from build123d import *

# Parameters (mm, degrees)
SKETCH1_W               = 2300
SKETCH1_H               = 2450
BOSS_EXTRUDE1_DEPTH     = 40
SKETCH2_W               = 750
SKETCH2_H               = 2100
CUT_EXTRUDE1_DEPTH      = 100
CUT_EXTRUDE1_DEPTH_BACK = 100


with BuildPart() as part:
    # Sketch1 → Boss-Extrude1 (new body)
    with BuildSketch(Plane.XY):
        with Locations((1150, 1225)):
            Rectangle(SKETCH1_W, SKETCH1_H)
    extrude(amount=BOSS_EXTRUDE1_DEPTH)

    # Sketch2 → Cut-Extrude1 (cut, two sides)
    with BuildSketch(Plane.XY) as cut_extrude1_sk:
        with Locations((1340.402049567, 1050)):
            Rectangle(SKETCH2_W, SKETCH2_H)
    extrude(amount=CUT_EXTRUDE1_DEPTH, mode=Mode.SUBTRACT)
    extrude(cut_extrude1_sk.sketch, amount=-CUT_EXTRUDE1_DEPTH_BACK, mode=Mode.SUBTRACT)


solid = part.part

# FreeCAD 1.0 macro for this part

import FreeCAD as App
import Part
import Sketcher
Q = App.Units.Quantity


def add_polygon(sketch, points):
    """Adds a closed chain of lines whose ends are joined by coincident constraints."""
    first, n = sketch.GeometryCount, len(points)
    for a, b in zip(points, points[1:] + points[:1]):
        sketch.addGeometry(Part.LineSegment(App.Vector(*a, 0), App.Vector(*b, 0)), False)
    for i in range(n):
        sketch.addConstraint(Sketcher.Constraint("Coincident", first + i, 2, first + (i + 1) % n, 1))

doc = App.newDocument("Part")
params = doc.addObject("Spreadsheet::Sheet", "Params")
for row, (alias, value) in enumerate([
    ("sketch1_width", "2300 mm"),
    ("sketch1_height", "2450 mm"),
    ("pad1_length", "40 mm"),
    ("sketch2_width", "750 mm"),
    ("sketch2_height", "2100 mm"),
], start=1):
    params.set(f"A{row}", alias)
    params.set(f"B{row}", "=" + value)
    params.setAlias(f"B{row}", alias)

body = doc.addObject("PartDesign::Body", "Body")

# Sketch on XY plane
sketch1 = body.newObject("Sketcher::SketchObject", "Sketch")
sketch1.AttachmentSupport = (doc.getObject("XY_Plane"), [""])
sketch1.MapMode = "FlatFace"
add_polygon(sketch1, [(0, 2450), (0, 0), (2300, 0), (2300, 2450)])  # lines 0-3
sketch1.addConstraint([
    Sketcher.Constraint("Vertical", 0),
    Sketcher.Constraint("Horizontal", 1),
    Sketcher.Constraint("Vertical", 2),
    Sketcher.Constraint("Horizontal", 3),
    Sketcher.Constraint("Coincident", 0, 2, -1, 1),
    Sketcher.Constraint("DistanceX", 1, 1, 1, 2, Q("2300 mm")),
    Sketcher.Constraint("DistanceY", 0, 2, 0, 1, Q("2450 mm")),
])
sketch1.setExpression("Constraints[9]", "Params.sketch1_width")
sketch1.setExpression("Constraints[10]", "Params.sketch1_height")
pad1 = body.newObject("PartDesign::Pad", "Pad")
pad1.Profile = sketch1
pad1.setExpression("Length", "Params.pad1_length")

# Sketch on XY plane
sketch2 = body.newObject("Sketcher::SketchObject", "Sketch001")
sketch2.AttachmentSupport = (doc.getObject("XY_Plane"), [""])
sketch2.MapMode = "FlatFace"
add_polygon(sketch2, [(965.40205, 2100), (965.40205, 0), (1715.40205, 0), (1715.40205, 2100)])  # lines 0-3
sketch2.addConstraint([
    Sketcher.Constraint("Vertical", 0),
    Sketcher.Constraint("Horizontal", 1),
    Sketcher.Constraint("Vertical", 2),
    Sketcher.Constraint("Horizontal", 3),
    Sketcher.Constraint("PointOnObject", 0, 2, -1),
    Sketcher.Constraint("DistanceX", 1, 1, 1, 2, Q("750 mm")),
    Sketcher.Constraint("DistanceY", 0, 2, 0, 1, Q("2100 mm")),
    Sketcher.Constraint("DistanceX", -1, 1, 0, 2, Q("965.40205 mm")),
])
sketch2.setExpression("Constraints[9]", "Params.sketch2_width")
sketch2.setExpression("Constraints[10]", "Params.sketch2_height")
pocket1 = body.newObject("PartDesign::Pocket", "Pocket")
pocket1.Profile = sketch2
pocket1.Type = "ThroughAll"
pocket1.Midplane = True

doc.recompute()
